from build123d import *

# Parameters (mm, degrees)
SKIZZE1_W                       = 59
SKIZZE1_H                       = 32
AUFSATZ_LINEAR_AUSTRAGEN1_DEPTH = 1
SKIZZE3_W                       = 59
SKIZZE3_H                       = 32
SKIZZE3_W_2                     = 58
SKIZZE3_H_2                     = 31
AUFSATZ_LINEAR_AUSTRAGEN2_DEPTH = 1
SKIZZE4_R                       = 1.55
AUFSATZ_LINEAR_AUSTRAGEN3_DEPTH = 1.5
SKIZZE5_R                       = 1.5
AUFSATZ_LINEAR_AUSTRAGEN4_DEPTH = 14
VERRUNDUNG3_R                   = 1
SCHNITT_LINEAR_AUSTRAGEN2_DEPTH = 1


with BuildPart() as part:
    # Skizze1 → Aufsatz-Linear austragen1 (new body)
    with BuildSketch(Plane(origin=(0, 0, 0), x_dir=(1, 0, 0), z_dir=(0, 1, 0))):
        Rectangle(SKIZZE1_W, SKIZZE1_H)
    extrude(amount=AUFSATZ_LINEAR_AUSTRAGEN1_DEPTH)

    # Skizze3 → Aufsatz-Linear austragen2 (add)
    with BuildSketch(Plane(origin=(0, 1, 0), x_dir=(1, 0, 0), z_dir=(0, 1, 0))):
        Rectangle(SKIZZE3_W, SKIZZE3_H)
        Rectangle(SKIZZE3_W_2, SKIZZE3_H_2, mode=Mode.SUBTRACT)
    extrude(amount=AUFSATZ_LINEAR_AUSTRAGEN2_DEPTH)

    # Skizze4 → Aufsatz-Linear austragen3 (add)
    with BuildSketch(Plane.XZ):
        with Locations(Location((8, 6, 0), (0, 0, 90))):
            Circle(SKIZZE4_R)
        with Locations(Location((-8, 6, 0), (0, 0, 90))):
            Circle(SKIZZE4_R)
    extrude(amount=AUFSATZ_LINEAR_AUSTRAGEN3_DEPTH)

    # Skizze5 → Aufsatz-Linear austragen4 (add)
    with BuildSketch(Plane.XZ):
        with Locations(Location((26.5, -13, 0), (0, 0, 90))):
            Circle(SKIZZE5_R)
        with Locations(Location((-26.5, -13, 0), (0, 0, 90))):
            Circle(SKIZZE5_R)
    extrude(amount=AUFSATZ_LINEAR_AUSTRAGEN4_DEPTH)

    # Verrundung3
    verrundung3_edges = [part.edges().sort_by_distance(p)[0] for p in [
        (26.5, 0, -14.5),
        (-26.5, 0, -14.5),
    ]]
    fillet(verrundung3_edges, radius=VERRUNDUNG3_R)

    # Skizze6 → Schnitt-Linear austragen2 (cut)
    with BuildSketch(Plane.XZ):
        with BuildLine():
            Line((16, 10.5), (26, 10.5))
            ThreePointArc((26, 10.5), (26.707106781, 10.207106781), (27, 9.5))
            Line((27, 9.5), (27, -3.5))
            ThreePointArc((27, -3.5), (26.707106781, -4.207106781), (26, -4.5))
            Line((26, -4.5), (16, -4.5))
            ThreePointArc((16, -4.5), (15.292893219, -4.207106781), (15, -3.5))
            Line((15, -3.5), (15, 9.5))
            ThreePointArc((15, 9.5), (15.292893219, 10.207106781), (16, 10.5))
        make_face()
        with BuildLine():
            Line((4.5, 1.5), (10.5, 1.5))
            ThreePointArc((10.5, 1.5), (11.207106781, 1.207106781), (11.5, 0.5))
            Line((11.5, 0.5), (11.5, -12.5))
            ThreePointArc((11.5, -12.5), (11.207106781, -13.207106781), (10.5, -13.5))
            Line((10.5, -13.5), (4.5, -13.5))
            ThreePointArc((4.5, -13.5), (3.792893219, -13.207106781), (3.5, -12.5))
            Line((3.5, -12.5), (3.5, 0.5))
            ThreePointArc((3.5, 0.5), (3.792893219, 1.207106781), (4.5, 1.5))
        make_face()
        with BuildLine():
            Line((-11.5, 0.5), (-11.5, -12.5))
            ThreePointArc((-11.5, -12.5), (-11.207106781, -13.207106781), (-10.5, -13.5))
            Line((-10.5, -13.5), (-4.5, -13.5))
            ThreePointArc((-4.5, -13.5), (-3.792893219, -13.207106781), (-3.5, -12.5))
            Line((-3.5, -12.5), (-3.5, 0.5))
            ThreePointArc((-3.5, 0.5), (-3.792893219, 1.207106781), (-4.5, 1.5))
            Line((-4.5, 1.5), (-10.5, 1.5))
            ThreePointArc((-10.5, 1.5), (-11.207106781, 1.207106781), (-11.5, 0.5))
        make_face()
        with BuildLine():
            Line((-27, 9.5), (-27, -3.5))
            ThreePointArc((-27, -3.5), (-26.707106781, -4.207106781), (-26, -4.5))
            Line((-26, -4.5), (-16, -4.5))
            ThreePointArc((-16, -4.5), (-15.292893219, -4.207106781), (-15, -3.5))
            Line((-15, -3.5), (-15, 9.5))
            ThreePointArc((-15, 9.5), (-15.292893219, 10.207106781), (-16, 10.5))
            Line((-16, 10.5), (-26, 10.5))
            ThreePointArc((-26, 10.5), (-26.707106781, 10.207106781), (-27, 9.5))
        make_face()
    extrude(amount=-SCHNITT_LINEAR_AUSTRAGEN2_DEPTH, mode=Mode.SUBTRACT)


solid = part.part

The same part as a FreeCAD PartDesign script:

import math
import FreeCAD as App
import Part
import Sketcher
from FreeCAD import Vector
Q = App.Units.Quantity


def edges_at(feature, points):
    """Names of the edges that pass closest to the given points."""
    edges = feature.Shape.Edges
    near = lambda p: min(range(len(edges)), key=lambda i: edges[i].distToShape(Part.Vertex(*p))[0])
    return sorted({f"Edge{near(p) + 1}" for p in points})

doc = App.newDocument("Part")
body = doc.addObject("PartDesign::Body", "Body")

# Sketch on XZ plane
sketch1 = body.newObject("Sketcher::SketchObject", "Sketch")
sketch1.AttachmentSupport = (doc.getObject("XZ_Plane"), [""])
sketch1.MapMode = "FlatFace"
sketch1.addGeometry([
    Part.LineSegment(Vector(-29.5, -16, 0), Vector(-29.5, 16, 0)),
    Part.LineSegment(Vector(-29.5, 16, 0), Vector(29.5, 16, 0)),
    Part.LineSegment(Vector(29.5, 16, 0), Vector(29.5, -16, 0)),
    Part.LineSegment(Vector(29.5, -16, 0), Vector(-29.5, -16, 0)),
], False)
sketch1.addConstraint([
    Sketcher.Constraint("Coincident", 0, 2, 1, 1),
    Sketcher.Constraint("Coincident", 1, 2, 2, 1),
    Sketcher.Constraint("Coincident", 2, 2, 3, 1),
    Sketcher.Constraint("Coincident", 3, 2, 0, 1),
    Sketcher.Constraint("Vertical", 0),
    Sketcher.Constraint("Horizontal", 1),
    Sketcher.Constraint("Vertical", 2),
    Sketcher.Constraint("Horizontal", 3),
    Sketcher.Constraint("Symmetric", 0, 2, 2, 2, -1, 1),
    Sketcher.Constraint("DistanceX", 1, 1, 1, 2, Q("59 mm")),
    Sketcher.Constraint("DistanceY", 0, 1, 0, 2, Q("32 mm")),
])
pad1 = body.newObject("PartDesign::Pad", "Pad")
pad1.Profile = sketch1
pad1.Length = 1
pad1.Reversed = True

# Sketch on XZ plane
sketch2 = body.newObject("Sketcher::SketchObject", "Sketch001")
sketch2.AttachmentSupport = (doc.getObject("XZ_Plane"), [""])
sketch2.MapMode = "FlatFace"
sketch2.AttachmentOffset = App.Placement(Vector(0, 0, -1), App.Rotation())
sketch2.addGeometry([
    Part.LineSegment(Vector(-29.5, -16, 0), Vector(-29.5, 16, 0)),  # 0
    Part.LineSegment(Vector(-29.5, 16, 0), Vector(29.5, 16, 0)),  # 1
    Part.LineSegment(Vector(29.5, 16, 0), Vector(29.5, -16, 0)),  # 2
    Part.LineSegment(Vector(29.5, -16, 0), Vector(-29.5, -16, 0)),  # 3
    Part.LineSegment(Vector(29, 15.5, 0), Vector(-29, 15.5, 0)),  # 4
    Part.LineSegment(Vector(-29, 15.5, 0), Vector(-29, -15.5, 0)),  # 5
    Part.LineSegment(Vector(-29, -15.5, 0), Vector(29, -15.5, 0)),  # 6
    Part.LineSegment(Vector(29, -15.5, 0), Vector(29, 15.5, 0)),  # 7
], False)
sketch2.addConstraint([
    Sketcher.Constraint("Coincident", 0, 2, 1, 1),
    Sketcher.Constraint("Coincident", 1, 2, 2, 1),
    Sketcher.Constraint("Coincident", 2, 2, 3, 1),
    Sketcher.Constraint("Coincident", 3, 2, 0, 1),
    Sketcher.Constraint("Coincident", 4, 2, 5, 1),
    Sketcher.Constraint("Coincident", 5, 2, 6, 1),
    Sketcher.Constraint("Coincident", 6, 2, 7, 1),
    Sketcher.Constraint("Coincident", 7, 2, 4, 1),
    Sketcher.Constraint("Vertical", 0),
    Sketcher.Constraint("Horizontal", 1),
    Sketcher.Constraint("Vertical", 2),
    Sketcher.Constraint("Horizontal", 3),
    Sketcher.Constraint("Horizontal", 4),
    Sketcher.Constraint("Vertical", 5),
    Sketcher.Constraint("Horizontal", 6),
    Sketcher.Constraint("Vertical", 7),
    Sketcher.Constraint("Symmetric", 0, 2, 2, 2, -1, 1),
    Sketcher.Constraint("Symmetric", 4, 2, 6, 2, -1, 1),
    Sketcher.Constraint("DistanceX", 1, 1, 1, 2, Q("59 mm")),
    Sketcher.Constraint("DistanceX", 4, 2, 4, 1, Q("58 mm")),
    Sketcher.Constraint("DistanceY", 0, 1, 0, 2, Q("32 mm")),
    Sketcher.Constraint("DistanceY", 5, 2, 5, 1, Q("31 mm")),
])
pad2 = body.newObject("PartDesign::Pad", "Pad001")
pad2.Profile = sketch2
pad2.Length = 1
pad2.Reversed = True

# Sketch on XZ plane
sketch3 = body.newObject("Sketcher::SketchObject", "Sketch002")
sketch3.AttachmentSupport = (doc.getObject("XZ_Plane"), [""])
sketch3.MapMode = "FlatFace"
sketch3.addGeometry([
    Part.Circle(Vector(8, 6, 0), Vector(0, 0, 1), 1.55),
    Part.Circle(Vector(-8, 6, 0), Vector(0, 0, 1), 1.55),
], False)
sketch3.addConstraint([
    Sketcher.Constraint("Equal", 0, 1),
    Sketcher.Constraint("Symmetric", 0, 3, 1, 3, -2),
    Sketcher.Constraint("Diameter", 0, Q("3.1 mm")),
    Sketcher.Constraint("DistanceX", -1, 1, 0, 3, Q("8 mm")),
    Sketcher.Constraint("DistanceY", -1, 1, 0, 3, Q("6 mm")),
])
pad3 = body.newObject("PartDesign::Pad", "Pad002")
pad3.Profile = sketch3
pad3.Length = 1.5

# Sketch on XZ plane
sketch4 = body.newObject("Sketcher::SketchObject", "Sketch003")
sketch4.AttachmentSupport = (doc.getObject("XZ_Plane"), [""])
sketch4.MapMode = "FlatFace"
sketch4.addGeometry([
    Part.Circle(Vector(26.5, -13, 0), Vector(0, 0, 1), 1.5),
    Part.Circle(Vector(-26.5, -13, 0), Vector(0, 0, 1), 1.5),
], False)
sketch4.addConstraint([
    Sketcher.Constraint("Equal", 0, 1),
    Sketcher.Constraint("Symmetric", 0, 3, 1, 3, -2),
    Sketcher.Constraint("Diameter", 0, Q("3 mm")),
    Sketcher.Constraint("DistanceY", 0, 3, -1, 1, Q("13 mm")),
    Sketcher.Constraint("DistanceX", 1, 3, 0, 3, Q("53 mm")),
])
pad4 = body.newObject("PartDesign::Pad", "Pad003")
pad4.Profile = sketch4
pad4.Length = 14
doc.recompute()

fillet = body.newObject("PartDesign::Fillet", "Fillet")
fillet.Base = (pad4, edges_at(pad4, [(26.5, 0, -14.5), (-26.5, 0, -14.5)]))
fillet.Radius = 1

# Sketch on XZ plane
sketch5 = body.newObject("Sketcher::SketchObject", "Sketch004")
sketch5.AttachmentSupport = (doc.getObject("XZ_Plane"), [""])
sketch5.MapMode = "FlatFace"
sketch5.addGeometry([
    Part.LineSegment(Vector(26, 10.5, 0), Vector(16, 10.5, 0)),  # 0
    Part.ArcOfCircle(Part.Circle(Vector(16, 9.5, 0), Vector(0, 0, 1), 1), math.radians(90), math.radians(180)),  # 1
    Part.LineSegment(Vector(15, 9.5, 0), Vector(15, -3.5, 0)),  # 2
    Part.ArcOfCircle(Part.Circle(Vector(16, -3.5, 0), Vector(0, 0, 1), 1), math.radians(-180), math.radians(-90)),  # 3
    Part.LineSegment(Vector(16, -4.5, 0), Vector(26, -4.5, 0)),  # 4
    Part.ArcOfCircle(Part.Circle(Vector(26, -3.5, 0), Vector(0, 0, 1), 1), math.radians(-90), math.radians(0)),  # 5
    Part.LineSegment(Vector(27, -3.5, 0), Vector(27, 9.5, 0)),  # 6
    Part.ArcOfCircle(Part.Circle(Vector(26, 9.5, 0), Vector(0, 0, 1), 1), math.radians(0), math.radians(90)),  # 7
    Part.LineSegment(Vector(10.5, 1.5, 0), Vector(4.5, 1.5, 0)),  # 8
    Part.ArcOfCircle(Part.Circle(Vector(4.5, 0.5, 0), Vector(0, 0, 1), 1), math.radians(90), math.radians(180)),  # 9
    Part.LineSegment(Vector(3.5, 0.5, 0), Vector(3.5, -12.5, 0)),  # 10
    Part.ArcOfCircle(Part.Circle(Vector(4.5, -12.5, 0), Vector(0, 0, 1), 1), math.radians(-180), math.radians(-90)),  # 11
    Part.LineSegment(Vector(4.5, -13.5, 0), Vector(10.5, -13.5, 0)),  # 12
    Part.ArcOfCircle(Part.Circle(Vector(10.5, -12.5, 0), Vector(0, 0, 1), 1), math.radians(-90), math.radians(0)),  # 13
    Part.LineSegment(Vector(11.5, -12.5, 0), Vector(11.5, 0.5, 0)),  # 14
    Part.ArcOfCircle(Part.Circle(Vector(10.5, 0.5, 0), Vector(0, 0, 1), 1), math.radians(0), math.radians(90)),  # 15
    Part.LineSegment(Vector(-11.5, 0.5, 0), Vector(-11.5, -12.5, 0)),  # 16
    Part.ArcOfCircle(Part.Circle(Vector(-10.5, -12.5, 0), Vector(0, 0, 1), 1), math.radians(-180), math.radians(-90)),  # 17
    Part.LineSegment(Vector(-10.5, -13.5, 0), Vector(-4.5, -13.5, 0)),  # 18
    Part.ArcOfCircle(Part.Circle(Vector(-4.5, -12.5, 0), Vector(0, 0, 1), 1), math.radians(-90), math.radians(0)),  # 19
    Part.LineSegment(Vector(-3.5, -12.5, 0), Vector(-3.5, 0.5, 0)),  # 20
    Part.ArcOfCircle(Part.Circle(Vector(-4.5, 0.5, 0), Vector(0, 0, 1), 1), math.radians(0), math.radians(90)),  # 21
    Part.LineSegment(Vector(-4.5, 1.5, 0), Vector(-10.5, 1.5, 0)),  # 22
    Part.ArcOfCircle(Part.Circle(Vector(-10.5, 0.5, 0), Vector(0, 0, 1), 1), math.radians(90), math.radians(180)),  # 23
    Part.LineSegment(Vector(-27, 9.5, 0), Vector(-27, -3.5, 0)),  # 24
    Part.ArcOfCircle(Part.Circle(Vector(-26, -3.5, 0), Vector(0, 0, 1), 1), math.radians(-180), math.radians(-90)),  # 25
    Part.LineSegment(Vector(-26, -4.5, 0), Vector(-16, -4.5, 0)),  # 26
    Part.ArcOfCircle(Part.Circle(Vector(-16, -3.5, 0), Vector(0, 0, 1), 1), math.radians(-90), math.radians(0)),  # 27
    Part.LineSegment(Vector(-15, -3.5, 0), Vector(-15, 9.5, 0)),  # 28
    Part.ArcOfCircle(Part.Circle(Vector(-16, 9.5, 0), Vector(0, 0, 1), 1), math.radians(0), math.radians(90)),  # 29
    Part.LineSegment(Vector(-16, 10.5, 0), Vector(-26, 10.5, 0)),  # 30
    Part.ArcOfCircle(Part.Circle(Vector(-26, 9.5, 0), Vector(0, 0, 1), 1), math.radians(90), math.radians(180)),  # 31
], False)
sketch5.addConstraint([
    Sketcher.Constraint("Tangent", 0, 2, 1, 1),
    Sketcher.Constraint("Tangent", 1, 2, 2, 1),
    Sketcher.Constraint("Tangent", 2, 2, 3, 1),
    Sketcher.Constraint("Tangent", 3, 2, 4, 1),
    Sketcher.Constraint("Tangent", 4, 2, 5, 1),
    Sketcher.Constraint("Tangent", 5, 2, 6, 1),
    Sketcher.Constraint("Tangent", 6, 2, 7, 1),
    Sketcher.Constraint("Tangent", 7, 2, 0, 1),
    Sketcher.Constraint("Tangent", 8, 2, 9, 1),
    Sketcher.Constraint("Tangent", 9, 2, 10, 1),
    Sketcher.Constraint("Tangent", 10, 2, 11, 1),
    Sketcher.Constraint("Tangent", 11, 2, 12, 1),
    Sketcher.Constraint("Tangent", 12, 2, 13, 1),
    Sketcher.Constraint("Tangent", 13, 2, 14, 1),
    Sketcher.Constraint("Tangent", 14, 2, 15, 1),
    Sketcher.Constraint("Tangent", 15, 2, 8, 1),
    Sketcher.Constraint("Tangent", 16, 2, 17, 1),
    Sketcher.Constraint("Tangent", 17, 2, 18, 1),
    Sketcher.Constraint("Tangent", 18, 2, 19, 1),
    Sketcher.Constraint("Tangent", 19, 2, 20, 1),
    Sketcher.Constraint("Tangent", 20, 2, 21, 1),
    Sketcher.Constraint("Tangent", 21, 2, 22, 1),
    Sketcher.Constraint("Tangent", 22, 2, 23, 1),
    Sketcher.Constraint("Tangent", 23, 2, 16, 1),
    Sketcher.Constraint("Tangent", 24, 2, 25, 1),
    Sketcher.Constraint("Tangent", 25, 2, 26, 1),
    Sketcher.Constraint("Tangent", 26, 2, 27, 1),
    Sketcher.Constraint("Tangent", 27, 2, 28, 1),
    Sketcher.Constraint("Tangent", 28, 2, 29, 1),
    Sketcher.Constraint("Tangent", 29, 2, 30, 1),
    Sketcher.Constraint("Tangent", 30, 2, 31, 1),
    Sketcher.Constraint("Tangent", 31, 2, 24, 1),
    Sketcher.Constraint("Horizontal", 0),
    Sketcher.Constraint("Vertical", 2),
    Sketcher.Constraint("Horizontal", 4),
    Sketcher.Constraint("Vertical", 6),
    Sketcher.Constraint("Horizontal", 8),
    Sketcher.Constraint("Vertical", 10),
    Sketcher.Constraint("Horizontal", 12),
    Sketcher.Constraint("Vertical", 14),
    Sketcher.Constraint("Vertical", 16),
    Sketcher.Constraint("Horizontal", 18),
    Sketcher.Constraint("Vertical", 20),
    Sketcher.Constraint("Horizontal", 22),
    Sketcher.Constraint("Vertical", 24),
    Sketcher.Constraint("Horizontal", 26),
    Sketcher.Constraint("Vertical", 28),
    Sketcher.Constraint("Horizontal", 30),
    Sketcher.Constraint("Equal", 1, 3),
    Sketcher.Constraint("Equal", 3, 5),
    Sketcher.Constraint("Equal", 5, 7),
    Sketcher.Constraint("Equal", 7, 9),
    Sketcher.Constraint("Equal", 9, 11),
    Sketcher.Constraint("Equal", 11, 13),
    Sketcher.Constraint("Equal", 13, 15),
    Sketcher.Constraint("Equal", 15, 17),
    Sketcher.Constraint("Equal", 17, 19),
    Sketcher.Constraint("Equal", 19, 21),
    Sketcher.Constraint("Equal", 21, 23),
    Sketcher.Constraint("Equal", 23, 25),
    Sketcher.Constraint("Equal", 25, 27),
    Sketcher.Constraint("Equal", 27, 29),
    Sketcher.Constraint("Equal", 29, 31),
    Sketcher.Constraint("Symmetric", 13, 3, 17, 3, -2),
    Sketcher.Constraint("Symmetric", 9, 3, 21, 3, -2),
    Sketcher.Constraint("Symmetric", 5, 3, 25, 3, -2),
    Sketcher.Constraint("Symmetric", 1, 3, 29, 3, -2),
    Sketcher.Constraint("Equal", 6, 10),
    Sketcher.Constraint("Radius", 1, Q("1 mm")),
    Sketcher.Constraint("DistanceX", 0, 2, 0, 1, Q("10 mm")),
    Sketcher.Constraint("DistanceX", 8, 2, 8, 1, Q("6 mm")),
    Sketcher.Constraint("DistanceY", 2, 2, 2, 1, Q("13 mm")),
    Sketcher.Constraint("DistanceX", -1, 1, 1, 3, Q("16 mm")),
    Sketcher.Constraint("DistanceY", 3, 3, 9, 3, Q("4 mm")),
    Sketcher.Constraint("DistanceX", 17, 3, 11, 3, Q("15 mm")),
    Sketcher.Constraint("DistanceY", -1, 1, 1, 3, Q("9.5 mm")),
])
pocket1 = body.newObject("PartDesign::Pocket", "Pocket")
pocket1.Profile = sketch5
pocket1.Length = 1

doc.recompute()
